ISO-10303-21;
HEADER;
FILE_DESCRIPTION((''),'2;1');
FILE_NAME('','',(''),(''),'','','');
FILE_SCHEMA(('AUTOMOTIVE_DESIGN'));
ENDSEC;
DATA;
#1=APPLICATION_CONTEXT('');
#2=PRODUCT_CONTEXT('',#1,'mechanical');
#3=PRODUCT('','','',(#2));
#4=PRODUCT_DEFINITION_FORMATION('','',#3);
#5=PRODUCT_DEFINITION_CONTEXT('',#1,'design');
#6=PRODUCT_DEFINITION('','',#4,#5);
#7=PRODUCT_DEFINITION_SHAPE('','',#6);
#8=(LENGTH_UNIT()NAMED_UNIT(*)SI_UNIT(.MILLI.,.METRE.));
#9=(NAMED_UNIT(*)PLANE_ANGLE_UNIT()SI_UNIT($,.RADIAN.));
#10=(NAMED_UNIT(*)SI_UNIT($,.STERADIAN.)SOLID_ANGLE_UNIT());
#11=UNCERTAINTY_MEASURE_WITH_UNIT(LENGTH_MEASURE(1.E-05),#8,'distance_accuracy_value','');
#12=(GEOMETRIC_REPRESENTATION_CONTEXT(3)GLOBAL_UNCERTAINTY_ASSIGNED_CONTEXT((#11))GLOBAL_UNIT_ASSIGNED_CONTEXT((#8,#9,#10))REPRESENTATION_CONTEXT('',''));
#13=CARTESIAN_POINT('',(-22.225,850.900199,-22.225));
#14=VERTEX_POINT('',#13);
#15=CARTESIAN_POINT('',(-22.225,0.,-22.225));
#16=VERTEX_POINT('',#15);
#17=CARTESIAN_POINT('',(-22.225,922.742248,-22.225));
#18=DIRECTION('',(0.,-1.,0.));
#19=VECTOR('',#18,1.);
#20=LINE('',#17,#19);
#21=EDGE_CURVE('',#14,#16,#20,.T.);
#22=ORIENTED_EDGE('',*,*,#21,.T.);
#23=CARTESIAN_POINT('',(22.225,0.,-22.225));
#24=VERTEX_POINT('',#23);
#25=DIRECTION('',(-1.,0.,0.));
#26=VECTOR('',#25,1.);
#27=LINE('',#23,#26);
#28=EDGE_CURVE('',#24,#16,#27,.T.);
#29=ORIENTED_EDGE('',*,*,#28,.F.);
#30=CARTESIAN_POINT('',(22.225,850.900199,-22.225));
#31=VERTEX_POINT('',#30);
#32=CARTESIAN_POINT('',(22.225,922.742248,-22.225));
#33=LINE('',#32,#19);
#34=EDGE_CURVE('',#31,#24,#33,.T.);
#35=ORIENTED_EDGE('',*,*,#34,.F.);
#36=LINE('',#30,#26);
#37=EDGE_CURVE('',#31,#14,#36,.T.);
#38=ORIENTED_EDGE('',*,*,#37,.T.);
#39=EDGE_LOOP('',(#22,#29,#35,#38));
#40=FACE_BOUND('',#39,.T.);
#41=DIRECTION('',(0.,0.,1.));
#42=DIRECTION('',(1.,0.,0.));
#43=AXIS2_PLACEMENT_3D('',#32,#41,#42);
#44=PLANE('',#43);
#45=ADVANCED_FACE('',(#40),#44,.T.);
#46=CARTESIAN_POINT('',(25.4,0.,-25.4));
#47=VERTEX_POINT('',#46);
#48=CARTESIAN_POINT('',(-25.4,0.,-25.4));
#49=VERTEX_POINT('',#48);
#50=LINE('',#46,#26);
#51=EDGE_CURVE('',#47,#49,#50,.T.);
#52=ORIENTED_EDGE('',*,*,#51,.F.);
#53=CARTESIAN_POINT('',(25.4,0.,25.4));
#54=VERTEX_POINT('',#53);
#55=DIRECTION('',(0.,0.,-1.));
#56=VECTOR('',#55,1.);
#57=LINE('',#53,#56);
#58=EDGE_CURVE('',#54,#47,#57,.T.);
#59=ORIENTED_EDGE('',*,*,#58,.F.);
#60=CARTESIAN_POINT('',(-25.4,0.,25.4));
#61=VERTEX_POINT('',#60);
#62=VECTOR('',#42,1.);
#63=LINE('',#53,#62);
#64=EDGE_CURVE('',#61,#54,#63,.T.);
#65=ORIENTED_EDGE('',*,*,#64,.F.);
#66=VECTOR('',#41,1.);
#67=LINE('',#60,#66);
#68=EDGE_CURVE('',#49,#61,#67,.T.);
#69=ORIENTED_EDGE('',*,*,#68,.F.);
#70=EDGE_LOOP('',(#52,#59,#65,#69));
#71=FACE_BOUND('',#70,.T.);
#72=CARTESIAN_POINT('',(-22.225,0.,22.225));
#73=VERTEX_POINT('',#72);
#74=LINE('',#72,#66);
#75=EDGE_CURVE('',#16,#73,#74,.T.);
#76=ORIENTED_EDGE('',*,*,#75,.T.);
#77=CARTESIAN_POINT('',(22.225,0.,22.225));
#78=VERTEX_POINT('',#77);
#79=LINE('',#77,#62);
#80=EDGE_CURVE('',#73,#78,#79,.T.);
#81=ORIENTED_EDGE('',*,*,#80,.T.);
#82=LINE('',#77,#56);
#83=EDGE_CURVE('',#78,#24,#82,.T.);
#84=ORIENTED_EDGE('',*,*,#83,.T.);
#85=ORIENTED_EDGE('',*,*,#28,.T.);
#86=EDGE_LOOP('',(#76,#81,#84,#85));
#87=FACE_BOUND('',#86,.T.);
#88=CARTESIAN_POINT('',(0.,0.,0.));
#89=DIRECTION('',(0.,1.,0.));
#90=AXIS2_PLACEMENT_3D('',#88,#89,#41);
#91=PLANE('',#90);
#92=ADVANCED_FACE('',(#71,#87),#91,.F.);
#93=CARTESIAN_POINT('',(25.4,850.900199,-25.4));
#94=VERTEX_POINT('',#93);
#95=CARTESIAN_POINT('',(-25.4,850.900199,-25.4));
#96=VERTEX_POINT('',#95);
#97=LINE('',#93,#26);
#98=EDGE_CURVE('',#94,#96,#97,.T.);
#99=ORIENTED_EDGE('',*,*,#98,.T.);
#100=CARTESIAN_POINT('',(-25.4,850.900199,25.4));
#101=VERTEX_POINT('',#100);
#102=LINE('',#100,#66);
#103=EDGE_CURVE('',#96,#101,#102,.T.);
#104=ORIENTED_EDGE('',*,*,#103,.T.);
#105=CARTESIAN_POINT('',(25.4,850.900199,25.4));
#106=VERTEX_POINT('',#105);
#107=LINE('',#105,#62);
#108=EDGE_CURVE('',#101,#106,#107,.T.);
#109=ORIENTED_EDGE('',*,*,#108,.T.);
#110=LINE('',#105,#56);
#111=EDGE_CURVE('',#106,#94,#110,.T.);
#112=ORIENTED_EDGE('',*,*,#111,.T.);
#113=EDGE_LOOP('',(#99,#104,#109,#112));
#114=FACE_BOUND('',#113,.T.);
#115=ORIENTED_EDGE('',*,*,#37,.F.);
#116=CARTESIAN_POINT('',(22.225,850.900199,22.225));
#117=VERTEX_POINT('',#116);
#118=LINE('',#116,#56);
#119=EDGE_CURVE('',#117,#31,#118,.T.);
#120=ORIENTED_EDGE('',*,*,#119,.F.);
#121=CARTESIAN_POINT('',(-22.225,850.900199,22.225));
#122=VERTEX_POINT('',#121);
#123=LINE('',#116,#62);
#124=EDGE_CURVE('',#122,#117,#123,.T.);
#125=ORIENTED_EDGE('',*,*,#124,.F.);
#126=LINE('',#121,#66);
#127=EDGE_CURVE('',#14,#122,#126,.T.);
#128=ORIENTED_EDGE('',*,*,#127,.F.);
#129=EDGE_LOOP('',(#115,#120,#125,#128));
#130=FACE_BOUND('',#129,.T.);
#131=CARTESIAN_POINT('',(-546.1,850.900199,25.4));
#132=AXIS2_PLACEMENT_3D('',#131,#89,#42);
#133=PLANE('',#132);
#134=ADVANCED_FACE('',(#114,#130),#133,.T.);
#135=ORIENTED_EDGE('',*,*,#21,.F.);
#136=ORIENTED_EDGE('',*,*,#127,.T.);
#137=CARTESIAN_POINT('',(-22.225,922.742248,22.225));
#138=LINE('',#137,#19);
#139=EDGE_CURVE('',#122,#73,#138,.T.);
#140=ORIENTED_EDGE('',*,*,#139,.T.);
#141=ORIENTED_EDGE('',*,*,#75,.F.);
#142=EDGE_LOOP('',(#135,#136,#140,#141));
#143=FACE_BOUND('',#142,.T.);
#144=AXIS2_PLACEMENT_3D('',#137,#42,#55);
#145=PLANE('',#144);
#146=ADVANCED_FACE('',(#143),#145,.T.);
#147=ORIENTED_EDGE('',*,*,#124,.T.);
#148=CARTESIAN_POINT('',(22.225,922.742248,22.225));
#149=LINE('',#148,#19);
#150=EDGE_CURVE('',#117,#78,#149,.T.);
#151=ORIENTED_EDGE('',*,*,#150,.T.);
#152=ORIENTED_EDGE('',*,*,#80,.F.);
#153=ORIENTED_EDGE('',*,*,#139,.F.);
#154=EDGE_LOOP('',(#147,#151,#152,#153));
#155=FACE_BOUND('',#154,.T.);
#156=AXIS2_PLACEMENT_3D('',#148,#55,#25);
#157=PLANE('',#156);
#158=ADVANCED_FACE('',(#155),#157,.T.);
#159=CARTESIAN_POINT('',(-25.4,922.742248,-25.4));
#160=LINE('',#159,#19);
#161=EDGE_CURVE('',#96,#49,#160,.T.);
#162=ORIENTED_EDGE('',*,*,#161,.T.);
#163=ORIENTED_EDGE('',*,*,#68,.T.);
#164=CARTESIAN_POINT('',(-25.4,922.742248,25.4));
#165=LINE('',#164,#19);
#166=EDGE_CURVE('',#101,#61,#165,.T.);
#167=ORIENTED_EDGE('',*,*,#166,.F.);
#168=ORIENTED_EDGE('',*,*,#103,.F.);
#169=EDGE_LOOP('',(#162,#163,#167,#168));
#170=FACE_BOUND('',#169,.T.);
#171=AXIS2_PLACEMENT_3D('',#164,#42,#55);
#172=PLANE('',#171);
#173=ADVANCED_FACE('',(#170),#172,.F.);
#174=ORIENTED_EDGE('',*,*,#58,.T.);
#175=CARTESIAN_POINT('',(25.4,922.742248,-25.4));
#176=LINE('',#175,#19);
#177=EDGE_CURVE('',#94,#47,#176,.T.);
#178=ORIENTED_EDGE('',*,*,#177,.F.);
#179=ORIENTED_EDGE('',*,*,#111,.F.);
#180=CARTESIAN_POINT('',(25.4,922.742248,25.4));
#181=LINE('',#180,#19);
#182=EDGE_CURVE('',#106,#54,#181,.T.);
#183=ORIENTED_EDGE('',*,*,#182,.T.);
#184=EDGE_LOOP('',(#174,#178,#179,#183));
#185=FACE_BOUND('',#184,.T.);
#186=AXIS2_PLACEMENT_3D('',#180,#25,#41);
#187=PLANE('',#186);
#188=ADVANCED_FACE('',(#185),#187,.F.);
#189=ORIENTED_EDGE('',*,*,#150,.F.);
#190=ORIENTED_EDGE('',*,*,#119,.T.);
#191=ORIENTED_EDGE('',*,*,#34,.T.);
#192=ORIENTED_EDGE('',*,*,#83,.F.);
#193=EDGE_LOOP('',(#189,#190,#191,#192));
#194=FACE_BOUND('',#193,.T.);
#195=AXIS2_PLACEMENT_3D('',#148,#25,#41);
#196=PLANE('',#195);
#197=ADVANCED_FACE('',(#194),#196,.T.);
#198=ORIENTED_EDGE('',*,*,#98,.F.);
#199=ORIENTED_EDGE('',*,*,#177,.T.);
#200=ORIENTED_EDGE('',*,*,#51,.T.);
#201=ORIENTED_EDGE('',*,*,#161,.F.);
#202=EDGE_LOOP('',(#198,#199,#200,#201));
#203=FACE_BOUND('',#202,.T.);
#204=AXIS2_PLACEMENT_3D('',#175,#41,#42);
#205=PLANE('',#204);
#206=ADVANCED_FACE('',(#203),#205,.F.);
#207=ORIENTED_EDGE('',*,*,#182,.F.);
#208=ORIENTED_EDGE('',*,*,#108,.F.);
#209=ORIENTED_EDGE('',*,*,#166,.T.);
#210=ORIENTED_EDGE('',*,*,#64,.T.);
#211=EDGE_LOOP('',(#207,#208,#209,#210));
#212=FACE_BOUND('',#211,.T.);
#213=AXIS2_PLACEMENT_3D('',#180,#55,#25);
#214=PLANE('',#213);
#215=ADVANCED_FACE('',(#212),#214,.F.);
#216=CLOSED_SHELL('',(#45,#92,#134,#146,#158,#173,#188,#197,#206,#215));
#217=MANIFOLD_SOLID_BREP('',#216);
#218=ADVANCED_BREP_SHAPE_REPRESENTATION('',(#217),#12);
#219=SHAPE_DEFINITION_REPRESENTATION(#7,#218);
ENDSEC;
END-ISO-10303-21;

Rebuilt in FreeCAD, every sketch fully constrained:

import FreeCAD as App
import Part
import Sketcher

V = App.Vector
Q = App.Units.Quantity

doc = App.newDocument("Part")
body = doc.addObject("PartDesign::Body", "Body")

# Sketch on XZ plane
sketch1 = body.newObject("Sketcher::SketchObject", "Sketch")
sketch1.AttachmentSupport = (doc.getObject("XZ_Plane"), [""])
sketch1.MapMode = "FlatFace"
sketch1.addGeometry([
    Part.LineSegment(V(-25, -25, 0), V(-25, 25, 0)),  # 0
    Part.LineSegment(V(-25, 25, 0), V(25, 25, 0)),  # 1
    Part.LineSegment(V(25, 25, 0), V(25, -25, 0)),  # 2
    Part.LineSegment(V(25, -25, 0), V(-25, -25, 0)),  # 3
    Part.LineSegment(V(22, 22, 0), V(-22, 22, 0)),  # 4
    Part.LineSegment(V(-22, 22, 0), V(-22, -22, 0)),  # 5
    Part.LineSegment(V(-22, -22, 0), V(22, -22, 0)),  # 6
    Part.LineSegment(V(22, -22, 0), V(22, 22, 0)),  # 7
], False)
sketch1.addConstraint([
    Sketcher.Constraint("Coincident", 0, 2, 1, 1),
    Sketcher.Constraint("Coincident", 1, 2, 2, 1),
    Sketcher.Constraint("Coincident", 2, 2, 3, 1),
    Sketcher.Constraint("Coincident", 3, 2, 0, 1),
    Sketcher.Constraint("Coincident", 4, 2, 5, 1),
    Sketcher.Constraint("Coincident", 5, 2, 6, 1),
    Sketcher.Constraint("Coincident", 6, 2, 7, 1),
    Sketcher.Constraint("Coincident", 7, 2, 4, 1),
    Sketcher.Constraint("Vertical", 0),
    Sketcher.Constraint("Horizontal", 1),
    Sketcher.Constraint("Vertical", 2),
    Sketcher.Constraint("Horizontal", 3),
    Sketcher.Constraint("Horizontal", 4),
    Sketcher.Constraint("Vertical", 5),
    Sketcher.Constraint("Horizontal", 6),
    Sketcher.Constraint("Vertical", 7),
    Sketcher.Constraint("Symmetric", 0, 2, 2, 2, -1, 1),
    Sketcher.Constraint("Symmetric", 4, 2, 6, 2, -1, 1),
    Sketcher.Constraint("Equal", 3, 0),
    Sketcher.Constraint("Equal", 6, 5),
    Sketcher.Constraint("DistanceX", 1, 1, 1, 2, Q("2 in")),
    Sketcher.Constraint("DistanceX", 4, 2, 4, 1, Q("1.75 in")),
])
pad1 = body.newObject("PartDesign::Pad", "Pad")
pad1.Profile = sketch1
pad1.Length = 850.900199
pad1.Reversed = True

doc.recompute()
